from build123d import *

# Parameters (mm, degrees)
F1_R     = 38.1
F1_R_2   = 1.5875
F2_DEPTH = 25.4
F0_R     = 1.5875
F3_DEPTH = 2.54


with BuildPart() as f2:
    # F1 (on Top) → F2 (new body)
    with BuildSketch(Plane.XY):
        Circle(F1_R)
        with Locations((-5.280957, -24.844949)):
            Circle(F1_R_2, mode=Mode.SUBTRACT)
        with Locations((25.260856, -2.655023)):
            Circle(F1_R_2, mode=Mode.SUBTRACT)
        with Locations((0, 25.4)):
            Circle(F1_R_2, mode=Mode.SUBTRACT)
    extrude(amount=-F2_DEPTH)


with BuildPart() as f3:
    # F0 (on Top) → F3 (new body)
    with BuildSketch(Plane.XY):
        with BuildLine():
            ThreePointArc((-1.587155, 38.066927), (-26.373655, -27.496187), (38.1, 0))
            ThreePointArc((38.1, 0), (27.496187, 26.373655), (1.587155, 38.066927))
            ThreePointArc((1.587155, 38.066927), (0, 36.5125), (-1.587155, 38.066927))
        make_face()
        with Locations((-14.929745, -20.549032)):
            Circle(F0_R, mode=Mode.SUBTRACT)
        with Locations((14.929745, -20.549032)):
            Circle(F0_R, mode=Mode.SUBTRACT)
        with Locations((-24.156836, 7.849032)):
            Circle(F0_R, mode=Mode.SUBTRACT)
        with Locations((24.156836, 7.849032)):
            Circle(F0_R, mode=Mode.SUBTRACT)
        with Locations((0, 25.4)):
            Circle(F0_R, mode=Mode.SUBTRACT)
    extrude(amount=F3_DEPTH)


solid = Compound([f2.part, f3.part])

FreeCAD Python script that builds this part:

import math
import FreeCAD as App
import Part
import Sketcher
Q = App.Units.Quantity

doc = App.newDocument("Part")
body = doc.addObject("PartDesign::Body", "Body")

sketch1 = body.newObject("Sketcher::SketchObject", "Sketch")
sketch1.AttachmentSupport = (doc.getObject("XY_Plane"), [""])
sketch1.MapMode = "FlatFace"
sketch1.addGeometry([
    Part.Circle(App.Vector(0, 0, 0), App.Vector(0, 0, 1), 38.1),
    Part.Circle(App.Vector(-5.280957, -24.844949, 0), App.Vector(0, 0, 1), 1.5875),
    Part.Circle(App.Vector(25.260856, -2.655023, 0), App.Vector(0, 0, 1), 1.5875),
    Part.Circle(App.Vector(0, 25.4, 0), App.Vector(0, 0, 1), 1.5875),
], False)
sketch1.addConstraint([
    Sketcher.Constraint("Coincident", 0, 3, -1, 1),
    Sketcher.Constraint("Equal", 1, 2),
    Sketcher.Constraint("Equal", 2, 3),
    Sketcher.Constraint("PointOnObject", 3, 3, -2),
    Sketcher.Constraint("Diameter", 0, Q("3 in")),
    Sketcher.Constraint("Diameter", 1, Q("0.125 in")),
    Sketcher.Constraint("DistanceY", -1, 1, 3, 3, Q("1 in")),
    Sketcher.Constraint("DistanceY", 1, 3, -1, 1, Q("24.844949 mm")),
    Sketcher.Constraint("DistanceX", 1, 3, -1, 1, Q("5.280957 mm")),
    Sketcher.Constraint("DistanceX", -1, 1, 2, 3, Q("25.260856 mm")),
    Sketcher.Constraint("DistanceY", 2, 3, -1, 1, Q("2.655023 mm")),
])
pad1 = body.newObject("PartDesign::Pad", "Pad")
pad1.Profile = sketch1
pad1.Length = Q("1 in")
pad1.Reversed = True
body2 = doc.addObject("PartDesign::Body", "Body001")

sketch2 = body2.newObject("Sketcher::SketchObject", "Sketch001")
sketch2.AttachmentSupport = (doc.getObject("XY_Plane001"), [""])
sketch2.MapMode = "FlatFace"
sketch2.addGeometry([
    Part.ArcOfCircle(Part.Circle(App.Vector(0, 0, 0), App.Vector(0, 0, 1), 38.1), math.radians(92.387496), math.radians(360)),
    Part.ArcOfCircle(Part.Circle(App.Vector(-0.000001, -0.000001, 0), App.Vector(0, 0, 1), 38.100001), math.radians(0.000001), math.radians(87.612503)),
    Part.ArcOfCircle(Part.Circle(App.Vector(0, 38.1, 0), App.Vector(0, 0, 1), 1.5875), math.radians(-178.806265), math.radians(-1.193735)),
    Part.Circle(App.Vector(-14.929745, -20.549032, 0), App.Vector(0, 0, 1), 1.5875),
    Part.Circle(App.Vector(14.929745, -20.549032, 0), App.Vector(0, 0, 1), 1.5875),
    Part.Circle(App.Vector(-24.156836, 7.849032, 0), App.Vector(0, 0, 1), 1.5875),
    Part.Circle(App.Vector(24.156836, 7.849032, 0), App.Vector(0, 0, 1), 1.5875),
    Part.Circle(App.Vector(0, 25.4, 0), App.Vector(0, 0, 1), 1.5875),
], False)
sketch2.addConstraint([
    Sketcher.Constraint("Tangent", 0, 2, 1, 1),
    Sketcher.Constraint("Coincident", 1, 2, 2, 2),
    Sketcher.Constraint("Coincident", 2, 1, 0, 1),
    Sketcher.Constraint("Coincident", 0, 3, -1, 1),
    Sketcher.Constraint("Equal", 0, 1),
    Sketcher.Constraint("Equal", 2, 3),
    Sketcher.Constraint("Equal", 3, 4),
    Sketcher.Constraint("Equal", 4, 5),
    Sketcher.Constraint("Equal", 5, 6),
    Sketcher.Constraint("Equal", 6, 7),
    Sketcher.Constraint("Symmetric", 3, 3, 4, 3, -2),
    Sketcher.Constraint("Symmetric", 5, 3, 6, 3, -2),
    Sketcher.Constraint("PointOnObject", 2, 3, -2),
    Sketcher.Constraint("PointOnObject", 7, 3, -2),
    Sketcher.Constraint("PointOnObject", 0, 2, -1),
    Sketcher.Constraint("Radius", 0, Q("1.5 in")),
    Sketcher.Constraint("Diameter", 3, Q("0.125 in")),
    Sketcher.Constraint("DistanceY", -1, 1, 7, 3, Q("1 in")),
    Sketcher.Constraint("DistanceY", -1, 1, 2, 3, Q("1.5 in")),
    Sketcher.Constraint("DistanceY", 3, 3, 1, 3, Q("20.549031 mm")),
    Sketcher.Constraint("DistanceX", 3, 3, 4, 3, Q("29.85949 mm")),
    Sketcher.Constraint("DistanceY", 0, 3, 5, 3, Q("7.849032 mm")),
    Sketcher.Constraint("DistanceX", 5, 3, 3, 3, Q("9.227091 mm")),
])
pad2 = body2.newObject("PartDesign::Pad", "Pad001")
pad2.Profile = sketch2
pad2.Length = Q("0.1 in")

doc.recompute()
